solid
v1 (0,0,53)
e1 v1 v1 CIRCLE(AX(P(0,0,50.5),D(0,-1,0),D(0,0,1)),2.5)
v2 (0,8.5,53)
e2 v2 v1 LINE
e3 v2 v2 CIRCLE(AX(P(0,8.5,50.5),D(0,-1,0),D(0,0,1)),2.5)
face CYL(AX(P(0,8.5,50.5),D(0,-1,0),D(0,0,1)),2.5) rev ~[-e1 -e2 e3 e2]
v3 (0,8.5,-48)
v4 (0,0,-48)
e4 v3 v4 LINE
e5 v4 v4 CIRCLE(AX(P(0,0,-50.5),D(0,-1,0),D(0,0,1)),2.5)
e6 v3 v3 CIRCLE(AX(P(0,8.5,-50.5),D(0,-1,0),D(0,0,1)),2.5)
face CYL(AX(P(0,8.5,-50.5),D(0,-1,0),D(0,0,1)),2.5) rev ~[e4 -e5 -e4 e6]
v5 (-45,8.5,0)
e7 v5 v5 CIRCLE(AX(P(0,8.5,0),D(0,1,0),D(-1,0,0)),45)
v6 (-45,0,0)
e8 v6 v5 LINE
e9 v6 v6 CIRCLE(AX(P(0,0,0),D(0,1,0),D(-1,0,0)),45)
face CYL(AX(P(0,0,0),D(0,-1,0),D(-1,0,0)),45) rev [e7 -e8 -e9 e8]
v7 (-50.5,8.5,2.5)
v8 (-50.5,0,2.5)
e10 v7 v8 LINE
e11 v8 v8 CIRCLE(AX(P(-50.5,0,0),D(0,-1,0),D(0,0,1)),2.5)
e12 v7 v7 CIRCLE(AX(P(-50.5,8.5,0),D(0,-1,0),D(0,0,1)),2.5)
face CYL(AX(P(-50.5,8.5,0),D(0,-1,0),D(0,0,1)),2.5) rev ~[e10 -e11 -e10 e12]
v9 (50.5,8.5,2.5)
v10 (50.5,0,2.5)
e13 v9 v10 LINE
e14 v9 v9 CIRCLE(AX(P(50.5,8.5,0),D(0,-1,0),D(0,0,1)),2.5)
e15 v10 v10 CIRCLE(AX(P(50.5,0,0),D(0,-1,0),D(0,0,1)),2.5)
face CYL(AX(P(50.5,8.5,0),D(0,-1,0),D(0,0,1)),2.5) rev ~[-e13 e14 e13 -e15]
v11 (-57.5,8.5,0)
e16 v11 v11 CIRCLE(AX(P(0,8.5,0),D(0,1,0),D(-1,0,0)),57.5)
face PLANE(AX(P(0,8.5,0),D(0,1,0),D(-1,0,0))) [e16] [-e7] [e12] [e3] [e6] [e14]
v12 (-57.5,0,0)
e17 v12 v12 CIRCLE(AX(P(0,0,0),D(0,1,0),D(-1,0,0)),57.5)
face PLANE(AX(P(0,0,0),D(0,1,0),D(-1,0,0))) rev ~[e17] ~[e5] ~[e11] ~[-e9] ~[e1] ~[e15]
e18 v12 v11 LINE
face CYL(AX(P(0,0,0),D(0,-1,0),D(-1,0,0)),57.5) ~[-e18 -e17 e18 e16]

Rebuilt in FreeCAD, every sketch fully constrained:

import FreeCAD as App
import Part
import Sketcher
from FreeCAD import Vector
Q = App.Units.Quantity

doc = App.newDocument("Part")
body = doc.addObject("PartDesign::Body", "Body")

sketch1 = doc.addObject("Sketcher::SketchObject", "Sketch")
body.addObject(sketch1)
sketch1.AttachmentSupport = (doc.XZ_Plane, [""])
sketch1.MapMode = "FlatFace"
sketch1.addGeometry([
    Part.Circle(Vector(0, 0, 0), Vector(0, 0, 1), 58),
    Part.Circle(Vector(0, 0, 0), Vector(0, 0, 1), 45),
], False)
sketch1.addConstraint([
    Sketcher.Constraint("Coincident", 0, 3, -1, 1),
    Sketcher.Constraint("Coincident", 1, 3, -1, 1),
    Sketcher.Constraint("Diameter", 0, Q("115 mm")),
    Sketcher.Constraint("Diameter", 1, Q("90 mm")),
])
pad1 = doc.addObject("PartDesign::Pad", "Pad")
body.addObject(pad1)
pad1.Profile = sketch1
pad1.Length = 8.5
pad1.Reversed = True

sketch2 = doc.addObject("Sketcher::SketchObject", "Sketch001")
body.addObject(sketch2)
sketch2.AttachmentSupport = (doc.XZ_Plane, [""])
sketch2.MapMode = "FlatFace"
sketch2.AttachmentOffset = App.Placement(Vector(0, 0, -8.5), App.Rotation())
sketch2.addGeometry([
    Part.Circle(Vector(-50.5, 0, 0), Vector(0, 0, 1), 2.5),
    Part.Circle(Vector(0, 50.5, 0), Vector(0, 0, 1), 2.5),
    Part.Circle(Vector(50.5, 0, 0), Vector(0, 0, 1), 2.5),
    Part.Circle(Vector(0, -50.5, 0), Vector(0, 0, 1), 2.5),
], False)
sketch2.addConstraint([
    Sketcher.Constraint("Equal", 0, 1),
    Sketcher.Constraint("Equal", 1, 2),
    Sketcher.Constraint("Equal", 2, 3),
    Sketcher.Constraint("Symmetric", 0, 3, 2, 3, -1, 1),
    Sketcher.Constraint("Symmetric", 1, 3, 3, 3, -1, 1),
    Sketcher.Constraint("PointOnObject", 0, 3, -1),
    Sketcher.Constraint("PointOnObject", 1, 3, -2),
    Sketcher.Constraint("Diameter", 0, Q("5 mm")),
    Sketcher.Constraint("DistanceX", 0, 3, 2, 3, Q("101 mm")),
    Sketcher.Constraint("DistanceY", 3, 3, 1, 3, Q("101 mm")),
])
doc.recompute()
hole = doc.addObject("PartDesign::Hole", "Hole")
body.addObject(hole)
hole.Profile = sketch2
hole.ThreadType = "None"
hole.Diameter = 5
hole.DepthType = "ThroughAll"
hole.Reversed = True

doc.recompute()
